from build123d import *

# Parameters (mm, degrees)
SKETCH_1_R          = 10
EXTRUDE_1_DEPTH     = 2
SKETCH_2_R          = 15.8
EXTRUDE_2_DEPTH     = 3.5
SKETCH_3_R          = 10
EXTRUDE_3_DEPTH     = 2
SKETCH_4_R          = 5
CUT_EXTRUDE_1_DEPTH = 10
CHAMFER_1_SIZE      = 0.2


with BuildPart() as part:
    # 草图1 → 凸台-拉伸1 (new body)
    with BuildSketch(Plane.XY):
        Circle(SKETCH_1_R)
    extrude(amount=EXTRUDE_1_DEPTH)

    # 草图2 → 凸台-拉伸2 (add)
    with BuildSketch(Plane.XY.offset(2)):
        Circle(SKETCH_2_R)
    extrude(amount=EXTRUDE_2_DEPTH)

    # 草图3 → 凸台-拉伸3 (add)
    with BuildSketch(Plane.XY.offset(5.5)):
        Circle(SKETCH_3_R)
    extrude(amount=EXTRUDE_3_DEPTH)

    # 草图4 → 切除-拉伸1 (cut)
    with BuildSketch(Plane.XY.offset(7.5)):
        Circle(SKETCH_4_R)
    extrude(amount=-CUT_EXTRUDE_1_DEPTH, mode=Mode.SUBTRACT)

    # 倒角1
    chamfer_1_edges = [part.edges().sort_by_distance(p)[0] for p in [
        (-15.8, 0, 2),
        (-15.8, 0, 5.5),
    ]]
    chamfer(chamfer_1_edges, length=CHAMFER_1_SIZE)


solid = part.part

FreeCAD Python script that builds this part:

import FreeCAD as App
import Part
import Sketcher
Q = App.Units.Quantity


def edges_at(feature, points):
    """Names of the edges that pass closest to the given points."""
    edges = feature.Shape.Edges
    near = lambda p: min(range(len(edges)), key=lambda i: edges[i].distToShape(Part.Vertex(*p))[0])
    return sorted({f"Edge{near(p) + 1}" for p in points})

doc = App.newDocument("Part")
params = doc.addObject("Spreadsheet::Sheet", "Params")
for row, (alias, value) in enumerate([
    ("sketch1_diameter", "20 mm"),
    ("pad1_length", "2 mm"),
    ("sketch2_diameter", "31.6 mm"),
    ("pad2_length", "3.5 mm"),
    ("sketch3_diameter", "20 mm"),
    ("pad3_length", "2 mm"),
    ("sketch4_diameter", "10 mm"),
    ("pocket1_length", "10 mm"),
    ("chamfer_size", "0.2 mm"),
], start=1):
    params.set(f"A{row}", alias)
    params.set(f"B{row}", "=" + value)
    params.setAlias(f"B{row}", alias)

body = doc.addObject("PartDesign::Body", "Body")

# Sketch on XY plane
sketch1 = body.newObject("Sketcher::SketchObject", "Sketch")
sketch1.AttachmentSupport = (doc.getObject("XY_Plane"), [""])
sketch1.MapMode = "FlatFace"
sketch1.addGeometry(Part.Circle(App.Vector(0, 0, 0), App.Vector(0, 0, 1), 10), False)
sketch1.addConstraint(Sketcher.Constraint("Coincident", 0, 3, -1, 1))
sketch1.addConstraint(Sketcher.Constraint("Diameter", 0, Q("20 mm")))
sketch1.setExpression("Constraints[1]", "Params.sketch1_diameter")
pad1 = body.newObject("PartDesign::Pad", "Pad")
pad1.Profile = sketch1
pad1.setExpression("Length", "Params.pad1_length")

# Sketch on XY plane
sketch2 = body.newObject("Sketcher::SketchObject", "Sketch001")
sketch2.AttachmentSupport = (doc.getObject("XY_Plane"), [""])
sketch2.MapMode = "FlatFace"
sketch2.AttachmentOffset = App.Placement(App.Vector(0, 0, 2), App.Rotation())
sketch2.addGeometry(Part.Circle(App.Vector(0, 0, 0), App.Vector(0, 0, 1), 16), False)
sketch2.addConstraint(Sketcher.Constraint("Coincident", 0, 3, -1, 1))
sketch2.addConstraint(Sketcher.Constraint("Diameter", 0, Q("31.6 mm")))
sketch2.setExpression("Constraints[1]", "Params.sketch2_diameter")
pad2 = body.newObject("PartDesign::Pad", "Pad001")
pad2.Profile = sketch2
pad2.setExpression("Length", "Params.pad2_length")

# Sketch on XY plane
sketch3 = body.newObject("Sketcher::SketchObject", "Sketch002")
sketch3.AttachmentSupport = (doc.getObject("XY_Plane"), [""])
sketch3.MapMode = "FlatFace"
sketch3.AttachmentOffset = App.Placement(App.Vector(0, 0, 5.5), App.Rotation())
sketch3.addGeometry(Part.Circle(App.Vector(0, 0, 0), App.Vector(0, 0, 1), 10), False)
sketch3.addConstraint(Sketcher.Constraint("Coincident", 0, 3, -1, 1))
sketch3.addConstraint(Sketcher.Constraint("Diameter", 0, Q("20 mm")))
sketch3.setExpression("Constraints[1]", "Params.sketch3_diameter")
pad3 = body.newObject("PartDesign::Pad", "Pad002")
pad3.Profile = sketch3
pad3.setExpression("Length", "Params.pad3_length")

# Sketch on XY plane
sketch4 = body.newObject("Sketcher::SketchObject", "Sketch003")
sketch4.AttachmentSupport = (doc.getObject("XY_Plane"), [""])
sketch4.MapMode = "FlatFace"
sketch4.AttachmentOffset = App.Placement(App.Vector(0, 0, 7.5), App.Rotation())
sketch4.addGeometry(Part.Circle(App.Vector(0, 0, 0), App.Vector(0, 0, 1), 5), False)
sketch4.addConstraint(Sketcher.Constraint("Coincident", 0, 3, -1, 1))
sketch4.addConstraint(Sketcher.Constraint("Diameter", 0, Q("10 mm")))
sketch4.setExpression("Constraints[1]", "Params.sketch4_diameter")
pocket1 = body.newObject("PartDesign::Pocket", "Pocket")
pocket1.Profile = sketch4
pocket1.setExpression("Length", "Params.pocket1_length")
doc.recompute()

chamfer = body.newObject("PartDesign::Chamfer", "Chamfer")
chamfer.Base = (pocket1, edges_at(pocket1, [(-15.8, 0, 2), (-15.8, 0, 5.5)]))
chamfer.setExpression("Size", "Params.chamfer_size")

doc.recompute()
